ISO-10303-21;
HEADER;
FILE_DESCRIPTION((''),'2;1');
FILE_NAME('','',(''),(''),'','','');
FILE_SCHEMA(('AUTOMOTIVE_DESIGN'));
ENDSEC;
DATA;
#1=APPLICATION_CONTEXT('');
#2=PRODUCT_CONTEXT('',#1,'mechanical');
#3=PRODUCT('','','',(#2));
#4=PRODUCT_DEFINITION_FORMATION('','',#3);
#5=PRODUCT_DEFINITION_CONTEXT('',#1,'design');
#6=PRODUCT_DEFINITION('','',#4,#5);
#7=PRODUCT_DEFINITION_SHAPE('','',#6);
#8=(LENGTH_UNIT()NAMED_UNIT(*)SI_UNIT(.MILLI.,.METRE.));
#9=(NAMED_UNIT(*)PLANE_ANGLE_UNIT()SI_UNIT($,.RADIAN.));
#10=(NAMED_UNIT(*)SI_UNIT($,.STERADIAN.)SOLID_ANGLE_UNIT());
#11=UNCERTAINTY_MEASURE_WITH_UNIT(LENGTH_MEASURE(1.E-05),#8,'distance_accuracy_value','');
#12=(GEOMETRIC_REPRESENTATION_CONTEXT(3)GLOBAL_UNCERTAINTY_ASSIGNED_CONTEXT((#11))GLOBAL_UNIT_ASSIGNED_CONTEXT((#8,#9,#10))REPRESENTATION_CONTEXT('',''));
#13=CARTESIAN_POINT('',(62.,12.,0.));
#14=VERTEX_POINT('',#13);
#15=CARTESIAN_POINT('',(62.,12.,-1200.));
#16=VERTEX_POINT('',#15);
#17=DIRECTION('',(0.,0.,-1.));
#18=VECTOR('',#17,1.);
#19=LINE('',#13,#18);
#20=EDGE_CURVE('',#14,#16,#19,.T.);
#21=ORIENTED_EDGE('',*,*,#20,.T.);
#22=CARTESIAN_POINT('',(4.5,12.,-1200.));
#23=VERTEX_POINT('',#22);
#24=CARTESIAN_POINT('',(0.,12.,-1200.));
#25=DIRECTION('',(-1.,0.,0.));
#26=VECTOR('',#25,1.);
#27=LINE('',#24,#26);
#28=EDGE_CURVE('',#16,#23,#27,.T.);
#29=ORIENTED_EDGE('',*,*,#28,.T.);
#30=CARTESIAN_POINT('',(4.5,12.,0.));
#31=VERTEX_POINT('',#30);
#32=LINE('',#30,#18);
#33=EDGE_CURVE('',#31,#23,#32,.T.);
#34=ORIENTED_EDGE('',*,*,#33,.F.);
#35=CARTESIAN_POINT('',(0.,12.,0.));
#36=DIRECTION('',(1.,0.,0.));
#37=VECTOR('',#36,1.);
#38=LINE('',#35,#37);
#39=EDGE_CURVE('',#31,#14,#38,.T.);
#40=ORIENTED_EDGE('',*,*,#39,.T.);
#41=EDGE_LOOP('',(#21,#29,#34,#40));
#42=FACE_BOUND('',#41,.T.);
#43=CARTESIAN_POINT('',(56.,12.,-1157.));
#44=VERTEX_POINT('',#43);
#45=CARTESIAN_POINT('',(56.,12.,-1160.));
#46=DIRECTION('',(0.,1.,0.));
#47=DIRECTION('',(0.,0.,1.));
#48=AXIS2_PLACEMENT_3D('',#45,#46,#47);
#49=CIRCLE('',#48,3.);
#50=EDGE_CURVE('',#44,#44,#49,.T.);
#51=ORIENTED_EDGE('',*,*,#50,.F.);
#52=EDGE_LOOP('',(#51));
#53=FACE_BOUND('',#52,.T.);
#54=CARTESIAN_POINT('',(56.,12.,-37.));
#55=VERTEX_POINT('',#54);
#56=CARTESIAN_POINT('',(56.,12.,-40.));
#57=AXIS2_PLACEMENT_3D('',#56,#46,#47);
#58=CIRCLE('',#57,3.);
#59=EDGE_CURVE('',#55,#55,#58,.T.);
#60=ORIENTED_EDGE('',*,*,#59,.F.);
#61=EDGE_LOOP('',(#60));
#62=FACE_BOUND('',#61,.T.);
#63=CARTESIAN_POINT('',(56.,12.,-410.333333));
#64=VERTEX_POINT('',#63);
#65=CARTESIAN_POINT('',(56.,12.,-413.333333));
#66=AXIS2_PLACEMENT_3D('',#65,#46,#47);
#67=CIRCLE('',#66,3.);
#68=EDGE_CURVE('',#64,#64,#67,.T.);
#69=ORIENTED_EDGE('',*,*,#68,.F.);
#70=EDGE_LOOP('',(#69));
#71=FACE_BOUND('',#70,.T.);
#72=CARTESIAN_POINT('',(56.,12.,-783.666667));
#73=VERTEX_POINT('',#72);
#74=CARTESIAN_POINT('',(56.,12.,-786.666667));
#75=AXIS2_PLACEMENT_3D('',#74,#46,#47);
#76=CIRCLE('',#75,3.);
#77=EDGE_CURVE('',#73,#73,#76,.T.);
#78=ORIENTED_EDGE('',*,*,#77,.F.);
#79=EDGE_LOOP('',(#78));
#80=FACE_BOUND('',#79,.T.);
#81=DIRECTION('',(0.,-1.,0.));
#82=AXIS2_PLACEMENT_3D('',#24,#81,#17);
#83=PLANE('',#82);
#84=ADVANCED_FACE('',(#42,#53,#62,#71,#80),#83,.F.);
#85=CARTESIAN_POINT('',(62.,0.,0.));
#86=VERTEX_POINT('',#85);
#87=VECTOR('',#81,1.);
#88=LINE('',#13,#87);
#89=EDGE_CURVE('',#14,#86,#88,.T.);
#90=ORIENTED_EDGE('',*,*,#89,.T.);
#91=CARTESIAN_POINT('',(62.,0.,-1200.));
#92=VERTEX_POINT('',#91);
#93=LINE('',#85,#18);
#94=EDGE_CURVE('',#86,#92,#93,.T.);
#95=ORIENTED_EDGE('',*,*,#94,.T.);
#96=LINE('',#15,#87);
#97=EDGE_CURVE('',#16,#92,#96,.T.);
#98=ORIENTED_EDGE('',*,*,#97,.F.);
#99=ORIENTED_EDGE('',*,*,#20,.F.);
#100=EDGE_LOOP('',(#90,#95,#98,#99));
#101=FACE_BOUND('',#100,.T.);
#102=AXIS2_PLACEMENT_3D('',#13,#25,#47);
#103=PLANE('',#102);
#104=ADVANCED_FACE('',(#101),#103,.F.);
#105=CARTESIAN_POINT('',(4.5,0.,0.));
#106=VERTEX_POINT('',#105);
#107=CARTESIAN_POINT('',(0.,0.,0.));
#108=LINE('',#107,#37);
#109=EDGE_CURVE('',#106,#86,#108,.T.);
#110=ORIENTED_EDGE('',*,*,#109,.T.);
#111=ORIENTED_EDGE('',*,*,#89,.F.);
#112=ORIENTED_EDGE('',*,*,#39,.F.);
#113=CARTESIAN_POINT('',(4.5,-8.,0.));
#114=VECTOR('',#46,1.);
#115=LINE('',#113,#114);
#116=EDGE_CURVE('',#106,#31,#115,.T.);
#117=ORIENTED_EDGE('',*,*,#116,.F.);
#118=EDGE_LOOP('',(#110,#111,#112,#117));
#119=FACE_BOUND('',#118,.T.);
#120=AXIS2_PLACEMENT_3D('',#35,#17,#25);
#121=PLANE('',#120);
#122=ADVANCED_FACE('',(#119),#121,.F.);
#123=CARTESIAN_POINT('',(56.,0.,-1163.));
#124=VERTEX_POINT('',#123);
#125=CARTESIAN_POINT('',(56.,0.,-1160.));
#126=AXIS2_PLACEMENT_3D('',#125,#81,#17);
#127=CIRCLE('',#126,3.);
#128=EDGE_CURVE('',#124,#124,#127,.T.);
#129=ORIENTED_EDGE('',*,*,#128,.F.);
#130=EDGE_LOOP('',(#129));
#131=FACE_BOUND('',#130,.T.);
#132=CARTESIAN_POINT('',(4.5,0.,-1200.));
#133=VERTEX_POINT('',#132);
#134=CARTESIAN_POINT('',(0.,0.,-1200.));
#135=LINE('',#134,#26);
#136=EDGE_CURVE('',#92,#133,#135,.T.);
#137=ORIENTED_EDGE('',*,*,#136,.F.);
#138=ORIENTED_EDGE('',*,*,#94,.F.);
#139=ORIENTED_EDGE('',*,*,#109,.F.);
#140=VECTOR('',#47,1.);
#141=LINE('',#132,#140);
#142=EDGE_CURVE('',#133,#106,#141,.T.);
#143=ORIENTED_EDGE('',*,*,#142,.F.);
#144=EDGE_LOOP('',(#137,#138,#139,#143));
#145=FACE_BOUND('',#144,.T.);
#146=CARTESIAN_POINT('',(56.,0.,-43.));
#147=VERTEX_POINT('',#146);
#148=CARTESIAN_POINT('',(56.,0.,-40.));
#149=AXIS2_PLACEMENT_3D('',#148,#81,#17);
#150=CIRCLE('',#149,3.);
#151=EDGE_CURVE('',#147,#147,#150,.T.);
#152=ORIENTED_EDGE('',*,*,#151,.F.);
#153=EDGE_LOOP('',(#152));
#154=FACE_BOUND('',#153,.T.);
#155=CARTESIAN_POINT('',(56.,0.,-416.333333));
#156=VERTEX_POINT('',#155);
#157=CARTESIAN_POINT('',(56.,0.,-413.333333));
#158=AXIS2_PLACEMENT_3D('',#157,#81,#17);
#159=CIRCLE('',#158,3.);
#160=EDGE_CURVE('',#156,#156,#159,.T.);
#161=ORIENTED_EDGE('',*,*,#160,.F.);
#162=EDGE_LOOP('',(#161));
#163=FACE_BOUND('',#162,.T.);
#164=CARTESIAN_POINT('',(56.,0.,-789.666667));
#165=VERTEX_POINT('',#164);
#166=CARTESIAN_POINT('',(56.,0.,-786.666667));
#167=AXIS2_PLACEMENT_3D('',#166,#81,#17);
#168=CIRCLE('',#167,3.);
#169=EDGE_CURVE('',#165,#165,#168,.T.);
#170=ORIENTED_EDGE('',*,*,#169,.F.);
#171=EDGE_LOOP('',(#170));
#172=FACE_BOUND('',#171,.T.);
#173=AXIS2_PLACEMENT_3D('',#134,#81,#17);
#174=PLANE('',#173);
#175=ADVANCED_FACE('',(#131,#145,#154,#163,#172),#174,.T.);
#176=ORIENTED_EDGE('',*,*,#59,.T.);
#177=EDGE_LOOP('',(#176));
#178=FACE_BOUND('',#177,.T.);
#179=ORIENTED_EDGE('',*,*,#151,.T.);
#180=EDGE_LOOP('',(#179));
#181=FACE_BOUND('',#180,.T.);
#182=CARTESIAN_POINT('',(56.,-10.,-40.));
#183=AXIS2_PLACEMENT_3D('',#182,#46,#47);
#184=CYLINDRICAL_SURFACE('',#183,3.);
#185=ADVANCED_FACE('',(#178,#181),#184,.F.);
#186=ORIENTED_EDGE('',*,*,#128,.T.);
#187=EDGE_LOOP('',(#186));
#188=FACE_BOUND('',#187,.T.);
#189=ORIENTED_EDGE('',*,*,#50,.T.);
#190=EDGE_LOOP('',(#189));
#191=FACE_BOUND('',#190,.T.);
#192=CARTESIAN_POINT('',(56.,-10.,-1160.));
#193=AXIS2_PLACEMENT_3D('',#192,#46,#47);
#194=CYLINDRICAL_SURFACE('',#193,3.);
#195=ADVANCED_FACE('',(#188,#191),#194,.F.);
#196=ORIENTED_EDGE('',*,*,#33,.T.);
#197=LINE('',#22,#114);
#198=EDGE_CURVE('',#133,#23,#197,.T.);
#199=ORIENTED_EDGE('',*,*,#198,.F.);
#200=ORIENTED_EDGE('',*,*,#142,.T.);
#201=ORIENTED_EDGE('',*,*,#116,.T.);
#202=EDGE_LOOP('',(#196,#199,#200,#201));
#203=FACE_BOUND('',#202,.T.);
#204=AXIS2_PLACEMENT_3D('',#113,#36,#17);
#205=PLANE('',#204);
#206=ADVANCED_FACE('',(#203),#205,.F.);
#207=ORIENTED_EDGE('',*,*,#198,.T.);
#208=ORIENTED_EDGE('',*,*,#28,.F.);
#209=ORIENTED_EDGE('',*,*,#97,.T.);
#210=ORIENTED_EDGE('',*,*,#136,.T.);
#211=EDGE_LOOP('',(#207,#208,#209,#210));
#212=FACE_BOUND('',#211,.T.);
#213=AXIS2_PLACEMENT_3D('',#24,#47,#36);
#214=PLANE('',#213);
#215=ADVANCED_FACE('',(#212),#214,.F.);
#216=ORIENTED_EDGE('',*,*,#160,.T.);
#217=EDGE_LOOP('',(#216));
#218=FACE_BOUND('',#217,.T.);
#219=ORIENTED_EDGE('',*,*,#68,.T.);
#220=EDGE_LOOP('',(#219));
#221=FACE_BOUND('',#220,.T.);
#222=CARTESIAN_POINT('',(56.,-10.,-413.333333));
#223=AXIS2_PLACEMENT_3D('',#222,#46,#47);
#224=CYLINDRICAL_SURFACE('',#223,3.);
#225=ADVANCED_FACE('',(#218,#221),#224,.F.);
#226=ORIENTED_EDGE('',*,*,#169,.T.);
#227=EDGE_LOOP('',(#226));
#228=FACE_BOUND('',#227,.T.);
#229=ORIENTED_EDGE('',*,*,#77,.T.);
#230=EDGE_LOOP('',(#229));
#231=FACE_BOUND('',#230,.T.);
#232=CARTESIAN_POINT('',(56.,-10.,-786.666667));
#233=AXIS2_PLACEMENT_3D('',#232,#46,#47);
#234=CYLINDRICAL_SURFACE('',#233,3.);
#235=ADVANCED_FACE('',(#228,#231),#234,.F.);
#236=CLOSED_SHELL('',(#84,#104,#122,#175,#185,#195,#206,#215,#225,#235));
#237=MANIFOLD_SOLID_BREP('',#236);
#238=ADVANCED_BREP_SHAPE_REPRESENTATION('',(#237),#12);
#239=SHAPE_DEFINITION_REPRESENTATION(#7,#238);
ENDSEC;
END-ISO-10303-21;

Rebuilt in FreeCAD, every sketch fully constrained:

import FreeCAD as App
import Part
import Sketcher

V = App.Vector

doc = App.newDocument("Part")
body = doc.addObject("PartDesign::Body", "Body")

# Sketch on XZ plane
sketch1 = doc.addObject("Sketcher::SketchObject", "Sketch")
body.addObject(sketch1)
sketch1.AttachmentSupport = (doc.XZ_Plane, [""])
sketch1.MapMode = "FlatFace"
sketch1.addGeometry(Part.LineSegment(V(0, -1200, 0), V(0, 0, 0)), False)
sketch1.addGeometry(Part.LineSegment(V(0, 0, 0), V(62, 0, 0)), False)
sketch1.addGeometry(Part.LineSegment(V(62, 0, 0), V(62, -1200, 0)), False)
sketch1.addGeometry(Part.LineSegment(V(62, -1200, 0), V(0, -1200, 0)), False)
sketch1.addConstraint(Sketcher.Constraint("Coincident", 0, 2, 1, 1))
sketch1.addConstraint(Sketcher.Constraint("Coincident", 1, 2, 2, 1))
sketch1.addConstraint(Sketcher.Constraint("Coincident", 2, 2, 3, 1))
sketch1.addConstraint(Sketcher.Constraint("Coincident", 3, 2, 0, 1))
sketch1.addConstraint(Sketcher.Constraint("Vertical", 0))
sketch1.addConstraint(Sketcher.Constraint("Horizontal", 1))
sketch1.addConstraint(Sketcher.Constraint("Vertical", 2))
sketch1.addConstraint(Sketcher.Constraint("Horizontal", 3))
sketch1.addConstraint(Sketcher.Constraint("Coincident", 0, 2, -1, 1))
sketch1.addConstraint(Sketcher.Constraint("DistanceX", 1, 1, 1, 2, 62.0))
sketch1.addConstraint(Sketcher.Constraint("DistanceY", 0, 1, 0, 2, 1200.0))
pad1 = doc.addObject("PartDesign::Pad", "Pad")
body.addObject(pad1)
pad1.Profile = sketch1
pad1.Length = 12
pad1.Reversed = True

# Sketch on XZ plane
sketch2 = doc.addObject("Sketcher::SketchObject", "Sketch001")
body.addObject(sketch2)
sketch2.AttachmentSupport = (doc.XZ_Plane, [""])
sketch2.MapMode = "FlatFace"
sketch2.AttachmentOffset = App.Placement(V(0, 0, -12), App.Rotation())
sketch2.addGeometry(Part.Circle(V(56, -40, 0), V(0, 0, 1), 3), False)
sketch2.addGeometry(Part.Circle(V(56, -413.3, 0), V(0, 0, 1), 3), False)
sketch2.addGeometry(Part.Circle(V(56, -786.7, 0), V(0, 0, 1), 3), False)
sketch2.addGeometry(Part.Circle(V(56, -1160, 0), V(0, 0, 1), 3), False)
sketch2.addConstraint(Sketcher.Constraint("Equal", 0, 1))
sketch2.addConstraint(Sketcher.Constraint("Equal", 1, 2))
sketch2.addConstraint(Sketcher.Constraint("Equal", 2, 3))
sketch2.addConstraint(Sketcher.Constraint("Vertical", 0, 3, 1, 3))
sketch2.addConstraint(Sketcher.Constraint("Vertical", 1, 3, 2, 3))
sketch2.addConstraint(Sketcher.Constraint("Vertical", 2, 3, 3, 3))
sketch2.addConstraint(Sketcher.Constraint("Diameter", 0, 6.0))
sketch2.addConstraint(Sketcher.Constraint("DistanceX", -1, 1, 0, 3, 56.0))
sketch2.addConstraint(Sketcher.Constraint("DistanceY", 0, 3, -1, 1, 40.0))
sketch2.addConstraint(Sketcher.Constraint("DistanceY", 3, 3, -1, 1, 1160.0))
sketch2.addConstraint(Sketcher.Constraint("DistanceY", 1, 3, -1, 1, 413.333333))
sketch2.addConstraint(Sketcher.Constraint("DistanceY", 2, 3, -1, 1, 786.666667))
pocket1 = doc.addObject("PartDesign::Pocket", "Pocket")
body.addObject(pocket1)
pocket1.Profile = sketch2
pocket1.Length = 22
pocket1.Reversed = True

# Sketch on XZ plane
sketch3 = doc.addObject("Sketcher::SketchObject", "Sketch002")
body.addObject(sketch3)
sketch3.AttachmentSupport = (doc.XZ_Plane, [""])
sketch3.MapMode = "FlatFace"
sketch3.AttachmentOffset = App.Placement(V(0, 0, -12), App.Rotation())
sketch3.addGeometry(Part.LineSegment(V(-4, -1524, 0), V(-4, 0, 0)), False)
sketch3.addGeometry(Part.LineSegment(V(-4, 0, 0), V(4, 0, 0)), False)
sketch3.addGeometry(Part.LineSegment(V(4, 0, 0), V(4, -1524, 0)), False)
sketch3.addGeometry(Part.LineSegment(V(4, -1524, 0), V(-4, -1524, 0)), False)
sketch3.addConstraint(Sketcher.Constraint("Coincident", 0, 2, 1, 1))
sketch3.addConstraint(Sketcher.Constraint("Coincident", 1, 2, 2, 1))
sketch3.addConstraint(Sketcher.Constraint("Coincident", 2, 2, 3, 1))
sketch3.addConstraint(Sketcher.Constraint("Coincident", 3, 2, 0, 1))
sketch3.addConstraint(Sketcher.Constraint("Vertical", 0))
sketch3.addConstraint(Sketcher.Constraint("Horizontal", 1))
sketch3.addConstraint(Sketcher.Constraint("Vertical", 2))
sketch3.addConstraint(Sketcher.Constraint("Horizontal", 3))
sketch3.addConstraint(Sketcher.Constraint("PointOnObject", 0, 2, -1))
sketch3.addConstraint(Sketcher.Constraint("DistanceY", 0, 1, 0, 2, 1524.0))
sketch3.addConstraint(Sketcher.Constraint("DistanceX", -1, 1, 1, 2, 4.5))
sketch3.addConstraint(Sketcher.Constraint("DistanceX", 1, 1, 1, 2, 8.753853))
pocket2 = doc.addObject("PartDesign::Pocket", "Pocket001")
body.addObject(pocket2)
pocket2.Profile = sketch3
pocket2.Length = 20
pocket2.Reversed = True

doc.recompute()
